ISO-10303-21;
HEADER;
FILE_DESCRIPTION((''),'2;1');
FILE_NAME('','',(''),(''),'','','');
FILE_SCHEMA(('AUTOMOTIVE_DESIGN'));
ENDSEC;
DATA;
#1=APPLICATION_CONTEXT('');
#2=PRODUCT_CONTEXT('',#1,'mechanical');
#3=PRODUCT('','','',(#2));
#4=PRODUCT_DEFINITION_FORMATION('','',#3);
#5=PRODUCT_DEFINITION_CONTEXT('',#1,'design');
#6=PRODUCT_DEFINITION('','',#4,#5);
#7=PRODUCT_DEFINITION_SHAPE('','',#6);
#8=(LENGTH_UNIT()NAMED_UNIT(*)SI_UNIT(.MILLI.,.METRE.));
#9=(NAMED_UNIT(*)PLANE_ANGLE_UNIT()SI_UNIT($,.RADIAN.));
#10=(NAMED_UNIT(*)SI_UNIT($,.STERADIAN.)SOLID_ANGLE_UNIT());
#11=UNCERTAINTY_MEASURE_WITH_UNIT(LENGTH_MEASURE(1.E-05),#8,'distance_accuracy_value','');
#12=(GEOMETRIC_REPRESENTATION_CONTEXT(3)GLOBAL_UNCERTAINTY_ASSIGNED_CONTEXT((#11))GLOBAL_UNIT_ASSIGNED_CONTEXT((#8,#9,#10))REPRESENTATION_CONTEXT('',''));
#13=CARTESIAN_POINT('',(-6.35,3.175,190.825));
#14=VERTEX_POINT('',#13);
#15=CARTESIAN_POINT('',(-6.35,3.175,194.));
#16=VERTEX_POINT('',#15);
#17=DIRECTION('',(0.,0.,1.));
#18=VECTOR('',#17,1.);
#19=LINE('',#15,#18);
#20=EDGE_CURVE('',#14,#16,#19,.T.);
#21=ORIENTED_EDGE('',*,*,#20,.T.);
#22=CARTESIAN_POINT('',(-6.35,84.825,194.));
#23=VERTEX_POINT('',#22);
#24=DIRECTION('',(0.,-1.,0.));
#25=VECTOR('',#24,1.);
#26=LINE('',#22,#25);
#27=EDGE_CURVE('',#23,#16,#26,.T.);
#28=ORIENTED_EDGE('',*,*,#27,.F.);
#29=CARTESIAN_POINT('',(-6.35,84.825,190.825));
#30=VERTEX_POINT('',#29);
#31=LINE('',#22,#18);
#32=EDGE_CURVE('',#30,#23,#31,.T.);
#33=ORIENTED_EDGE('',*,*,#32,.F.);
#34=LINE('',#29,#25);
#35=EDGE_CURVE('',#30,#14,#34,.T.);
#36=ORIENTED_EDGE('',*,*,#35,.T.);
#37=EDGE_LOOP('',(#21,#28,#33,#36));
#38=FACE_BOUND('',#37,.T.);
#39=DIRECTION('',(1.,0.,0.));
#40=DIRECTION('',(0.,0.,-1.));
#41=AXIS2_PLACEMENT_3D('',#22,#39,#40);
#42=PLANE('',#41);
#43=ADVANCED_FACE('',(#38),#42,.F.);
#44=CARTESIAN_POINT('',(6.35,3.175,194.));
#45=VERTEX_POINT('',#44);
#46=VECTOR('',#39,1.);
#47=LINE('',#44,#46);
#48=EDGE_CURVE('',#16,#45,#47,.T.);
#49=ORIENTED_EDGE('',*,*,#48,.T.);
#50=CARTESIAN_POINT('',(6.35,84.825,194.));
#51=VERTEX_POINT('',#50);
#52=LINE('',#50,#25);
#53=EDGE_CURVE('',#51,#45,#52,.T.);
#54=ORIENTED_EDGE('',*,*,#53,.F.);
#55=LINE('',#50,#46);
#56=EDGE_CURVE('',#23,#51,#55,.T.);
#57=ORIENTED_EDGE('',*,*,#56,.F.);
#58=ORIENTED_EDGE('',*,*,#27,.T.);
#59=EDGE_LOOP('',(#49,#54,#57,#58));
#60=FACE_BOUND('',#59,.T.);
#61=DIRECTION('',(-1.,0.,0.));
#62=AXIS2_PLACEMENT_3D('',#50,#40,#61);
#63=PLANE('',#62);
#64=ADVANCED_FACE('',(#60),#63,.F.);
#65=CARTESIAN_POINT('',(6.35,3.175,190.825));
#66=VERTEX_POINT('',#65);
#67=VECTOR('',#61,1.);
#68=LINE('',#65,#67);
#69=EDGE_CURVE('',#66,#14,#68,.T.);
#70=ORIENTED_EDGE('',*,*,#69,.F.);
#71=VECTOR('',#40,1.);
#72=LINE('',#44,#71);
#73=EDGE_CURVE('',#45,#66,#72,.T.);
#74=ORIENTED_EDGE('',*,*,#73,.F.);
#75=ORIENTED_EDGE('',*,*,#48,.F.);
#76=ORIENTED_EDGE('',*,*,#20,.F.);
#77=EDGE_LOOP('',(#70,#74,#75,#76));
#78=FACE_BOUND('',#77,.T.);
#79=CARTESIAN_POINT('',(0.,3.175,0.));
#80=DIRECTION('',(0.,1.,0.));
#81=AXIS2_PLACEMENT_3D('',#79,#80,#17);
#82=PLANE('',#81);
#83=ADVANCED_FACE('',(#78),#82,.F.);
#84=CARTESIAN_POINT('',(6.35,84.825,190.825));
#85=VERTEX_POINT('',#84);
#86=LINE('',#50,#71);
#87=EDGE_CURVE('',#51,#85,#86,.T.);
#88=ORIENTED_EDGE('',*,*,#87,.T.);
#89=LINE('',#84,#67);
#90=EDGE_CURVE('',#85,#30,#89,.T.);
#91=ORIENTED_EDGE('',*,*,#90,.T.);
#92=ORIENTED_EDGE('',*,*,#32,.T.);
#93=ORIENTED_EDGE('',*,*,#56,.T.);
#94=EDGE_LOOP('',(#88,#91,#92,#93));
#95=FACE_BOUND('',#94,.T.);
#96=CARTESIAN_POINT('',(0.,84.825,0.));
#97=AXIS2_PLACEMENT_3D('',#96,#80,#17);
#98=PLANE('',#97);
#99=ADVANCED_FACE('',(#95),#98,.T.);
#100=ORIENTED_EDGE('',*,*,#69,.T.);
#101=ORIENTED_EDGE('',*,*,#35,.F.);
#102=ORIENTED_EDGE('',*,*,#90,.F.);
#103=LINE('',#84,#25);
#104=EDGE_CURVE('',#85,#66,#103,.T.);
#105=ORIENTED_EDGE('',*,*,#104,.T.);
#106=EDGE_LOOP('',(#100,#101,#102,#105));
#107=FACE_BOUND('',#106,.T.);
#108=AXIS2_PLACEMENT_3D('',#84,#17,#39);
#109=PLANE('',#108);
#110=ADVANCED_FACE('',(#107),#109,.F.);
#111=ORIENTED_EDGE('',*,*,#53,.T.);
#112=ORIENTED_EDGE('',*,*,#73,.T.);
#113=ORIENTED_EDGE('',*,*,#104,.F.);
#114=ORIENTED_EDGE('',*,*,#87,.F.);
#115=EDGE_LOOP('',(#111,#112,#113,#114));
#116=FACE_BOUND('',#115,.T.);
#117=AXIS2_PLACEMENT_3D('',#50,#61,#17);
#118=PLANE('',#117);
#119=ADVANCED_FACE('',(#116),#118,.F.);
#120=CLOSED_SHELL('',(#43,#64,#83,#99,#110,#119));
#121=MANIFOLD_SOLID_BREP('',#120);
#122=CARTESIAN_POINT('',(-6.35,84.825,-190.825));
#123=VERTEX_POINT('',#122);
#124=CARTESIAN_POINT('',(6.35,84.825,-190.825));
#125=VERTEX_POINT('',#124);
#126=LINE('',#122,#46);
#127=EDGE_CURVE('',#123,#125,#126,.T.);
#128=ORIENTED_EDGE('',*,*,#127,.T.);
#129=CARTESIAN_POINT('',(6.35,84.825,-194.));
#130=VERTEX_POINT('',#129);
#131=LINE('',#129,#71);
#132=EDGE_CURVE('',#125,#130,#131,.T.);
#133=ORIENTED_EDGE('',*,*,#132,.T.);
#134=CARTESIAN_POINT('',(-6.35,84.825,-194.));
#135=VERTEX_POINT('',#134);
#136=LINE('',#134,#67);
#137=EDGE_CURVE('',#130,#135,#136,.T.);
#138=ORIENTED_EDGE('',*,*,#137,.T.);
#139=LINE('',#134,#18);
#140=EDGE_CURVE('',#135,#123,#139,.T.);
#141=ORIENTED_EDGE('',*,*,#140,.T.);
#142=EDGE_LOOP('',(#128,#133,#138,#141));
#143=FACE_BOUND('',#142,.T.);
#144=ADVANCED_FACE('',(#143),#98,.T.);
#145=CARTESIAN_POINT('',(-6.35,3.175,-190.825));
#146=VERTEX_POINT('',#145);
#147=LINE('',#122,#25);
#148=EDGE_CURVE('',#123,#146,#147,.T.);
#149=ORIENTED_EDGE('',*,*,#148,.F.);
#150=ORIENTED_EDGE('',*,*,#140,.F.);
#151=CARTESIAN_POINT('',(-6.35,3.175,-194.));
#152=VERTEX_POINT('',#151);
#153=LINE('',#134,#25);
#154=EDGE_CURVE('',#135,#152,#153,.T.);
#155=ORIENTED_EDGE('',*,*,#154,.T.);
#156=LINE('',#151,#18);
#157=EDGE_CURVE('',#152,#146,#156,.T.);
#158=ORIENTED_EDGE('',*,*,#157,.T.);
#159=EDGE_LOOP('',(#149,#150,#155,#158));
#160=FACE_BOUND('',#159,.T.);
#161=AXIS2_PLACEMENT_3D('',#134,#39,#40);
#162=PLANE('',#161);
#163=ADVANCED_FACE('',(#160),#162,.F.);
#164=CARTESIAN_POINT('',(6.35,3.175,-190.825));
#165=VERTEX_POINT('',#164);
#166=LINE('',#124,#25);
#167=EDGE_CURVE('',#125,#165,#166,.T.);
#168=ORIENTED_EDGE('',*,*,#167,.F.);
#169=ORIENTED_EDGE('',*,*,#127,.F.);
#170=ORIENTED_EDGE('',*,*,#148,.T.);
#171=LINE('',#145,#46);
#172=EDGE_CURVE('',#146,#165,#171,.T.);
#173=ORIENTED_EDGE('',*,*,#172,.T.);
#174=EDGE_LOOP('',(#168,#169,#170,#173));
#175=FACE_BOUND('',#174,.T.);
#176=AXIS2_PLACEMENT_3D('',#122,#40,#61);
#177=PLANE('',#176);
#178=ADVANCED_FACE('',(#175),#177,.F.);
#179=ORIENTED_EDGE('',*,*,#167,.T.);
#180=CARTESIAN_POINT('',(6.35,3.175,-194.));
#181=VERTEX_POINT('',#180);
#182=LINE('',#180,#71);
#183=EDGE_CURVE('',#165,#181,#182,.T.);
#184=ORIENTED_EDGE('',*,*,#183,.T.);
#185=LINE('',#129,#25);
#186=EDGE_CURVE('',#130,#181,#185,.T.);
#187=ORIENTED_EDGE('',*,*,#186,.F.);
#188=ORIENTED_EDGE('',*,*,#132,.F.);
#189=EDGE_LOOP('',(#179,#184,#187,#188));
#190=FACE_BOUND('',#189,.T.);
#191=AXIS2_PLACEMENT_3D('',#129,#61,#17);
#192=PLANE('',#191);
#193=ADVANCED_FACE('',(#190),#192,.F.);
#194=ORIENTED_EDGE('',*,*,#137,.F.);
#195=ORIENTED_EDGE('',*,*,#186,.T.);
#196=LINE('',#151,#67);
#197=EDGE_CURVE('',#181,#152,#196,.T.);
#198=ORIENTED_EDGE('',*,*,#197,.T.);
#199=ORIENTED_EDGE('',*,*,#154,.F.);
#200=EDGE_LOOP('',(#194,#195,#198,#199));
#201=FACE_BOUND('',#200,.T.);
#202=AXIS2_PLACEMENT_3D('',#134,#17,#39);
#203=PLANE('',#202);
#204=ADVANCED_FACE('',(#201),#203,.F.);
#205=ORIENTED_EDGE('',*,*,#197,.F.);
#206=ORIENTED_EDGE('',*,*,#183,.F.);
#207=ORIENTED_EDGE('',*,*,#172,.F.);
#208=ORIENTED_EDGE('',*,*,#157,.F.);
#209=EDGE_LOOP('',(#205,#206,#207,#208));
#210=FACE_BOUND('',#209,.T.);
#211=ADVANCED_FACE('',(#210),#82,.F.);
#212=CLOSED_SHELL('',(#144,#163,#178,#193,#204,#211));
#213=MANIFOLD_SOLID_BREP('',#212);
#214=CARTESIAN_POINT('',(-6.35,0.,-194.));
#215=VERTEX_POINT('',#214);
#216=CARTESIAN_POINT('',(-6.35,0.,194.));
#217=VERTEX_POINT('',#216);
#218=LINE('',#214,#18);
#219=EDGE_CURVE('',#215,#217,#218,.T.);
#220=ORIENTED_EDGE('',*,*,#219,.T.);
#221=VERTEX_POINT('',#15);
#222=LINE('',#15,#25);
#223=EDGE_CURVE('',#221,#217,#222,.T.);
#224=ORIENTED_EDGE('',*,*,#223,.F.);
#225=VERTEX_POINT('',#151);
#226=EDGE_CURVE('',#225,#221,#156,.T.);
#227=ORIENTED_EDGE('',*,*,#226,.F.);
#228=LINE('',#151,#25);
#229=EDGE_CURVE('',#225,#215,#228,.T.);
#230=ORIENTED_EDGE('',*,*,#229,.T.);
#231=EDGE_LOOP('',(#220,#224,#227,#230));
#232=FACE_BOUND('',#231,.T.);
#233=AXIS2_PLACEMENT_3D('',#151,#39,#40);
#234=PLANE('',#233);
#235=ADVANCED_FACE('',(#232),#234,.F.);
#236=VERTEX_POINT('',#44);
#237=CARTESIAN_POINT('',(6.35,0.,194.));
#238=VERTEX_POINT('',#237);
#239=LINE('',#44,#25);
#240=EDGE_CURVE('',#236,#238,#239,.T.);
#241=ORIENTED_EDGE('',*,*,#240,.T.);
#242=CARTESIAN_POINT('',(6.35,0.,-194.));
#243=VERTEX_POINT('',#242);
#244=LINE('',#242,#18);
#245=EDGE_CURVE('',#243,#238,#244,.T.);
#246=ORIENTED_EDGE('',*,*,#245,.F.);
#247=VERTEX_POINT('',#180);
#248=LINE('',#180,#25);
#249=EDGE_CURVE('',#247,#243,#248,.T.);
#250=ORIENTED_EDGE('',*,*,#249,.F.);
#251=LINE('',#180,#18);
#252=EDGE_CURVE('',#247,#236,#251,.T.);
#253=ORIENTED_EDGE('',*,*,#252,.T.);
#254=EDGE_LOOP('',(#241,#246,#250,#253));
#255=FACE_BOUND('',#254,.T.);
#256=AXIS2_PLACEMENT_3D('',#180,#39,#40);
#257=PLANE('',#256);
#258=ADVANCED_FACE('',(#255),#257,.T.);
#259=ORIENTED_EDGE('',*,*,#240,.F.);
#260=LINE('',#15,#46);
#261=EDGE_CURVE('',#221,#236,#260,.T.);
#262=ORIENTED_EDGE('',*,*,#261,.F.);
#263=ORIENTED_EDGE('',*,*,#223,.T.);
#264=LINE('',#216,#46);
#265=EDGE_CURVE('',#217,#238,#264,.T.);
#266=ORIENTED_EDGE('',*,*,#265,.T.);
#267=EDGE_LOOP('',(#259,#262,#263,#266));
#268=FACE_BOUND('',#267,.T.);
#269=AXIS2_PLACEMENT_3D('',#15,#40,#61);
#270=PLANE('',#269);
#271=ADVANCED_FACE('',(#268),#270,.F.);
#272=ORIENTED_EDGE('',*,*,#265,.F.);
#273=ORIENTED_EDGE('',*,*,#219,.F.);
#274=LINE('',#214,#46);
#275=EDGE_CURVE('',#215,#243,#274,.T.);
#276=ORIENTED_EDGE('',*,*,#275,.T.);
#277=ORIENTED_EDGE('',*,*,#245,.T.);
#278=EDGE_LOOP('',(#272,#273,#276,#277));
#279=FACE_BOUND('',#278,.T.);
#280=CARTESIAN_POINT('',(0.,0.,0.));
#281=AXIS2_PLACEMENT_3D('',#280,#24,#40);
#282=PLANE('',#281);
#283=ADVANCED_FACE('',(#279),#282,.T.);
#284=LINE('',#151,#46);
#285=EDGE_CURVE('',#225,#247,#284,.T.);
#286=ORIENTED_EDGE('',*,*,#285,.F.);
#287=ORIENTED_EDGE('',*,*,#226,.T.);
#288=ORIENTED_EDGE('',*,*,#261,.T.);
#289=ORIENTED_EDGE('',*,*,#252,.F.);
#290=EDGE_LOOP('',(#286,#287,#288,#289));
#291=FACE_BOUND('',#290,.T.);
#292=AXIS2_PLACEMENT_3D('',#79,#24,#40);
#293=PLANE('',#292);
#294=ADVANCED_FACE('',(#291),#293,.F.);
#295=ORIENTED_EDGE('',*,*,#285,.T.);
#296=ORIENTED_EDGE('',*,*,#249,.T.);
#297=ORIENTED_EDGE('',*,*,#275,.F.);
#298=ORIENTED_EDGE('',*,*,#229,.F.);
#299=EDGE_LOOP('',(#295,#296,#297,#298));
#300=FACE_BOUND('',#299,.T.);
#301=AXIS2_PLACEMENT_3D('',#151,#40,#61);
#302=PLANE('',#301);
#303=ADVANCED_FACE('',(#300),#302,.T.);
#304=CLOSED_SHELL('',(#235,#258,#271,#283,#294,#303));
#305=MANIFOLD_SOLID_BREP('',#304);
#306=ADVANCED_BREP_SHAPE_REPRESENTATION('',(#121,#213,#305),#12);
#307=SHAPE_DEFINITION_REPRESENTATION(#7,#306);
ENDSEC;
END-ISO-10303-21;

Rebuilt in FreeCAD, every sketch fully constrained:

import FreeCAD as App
import Part
import Sketcher

V = App.Vector
Q = App.Units.Quantity

doc = App.newDocument("Part")
body = doc.addObject("PartDesign::Body", "Body")

sketch1 = body.newObject("Sketcher::SketchObject", "Sketch")
sketch1.AttachmentSupport = (doc.getObject("XZ_Plane"), [""])
sketch1.MapMode = "FlatFace"
sketch1.addGeometry(Part.LineSegment(V(-6.35, -194, 0), V(-6.35, 194, 0)), False)
sketch1.addGeometry(Part.LineSegment(V(-6.35, 194, 0), V(6.35, 194, 0)), False)
sketch1.addGeometry(Part.LineSegment(V(6.35, 194, 0), V(6.35, -194, 0)), False)
sketch1.addGeometry(Part.LineSegment(V(6.35, -194, 0), V(-6.35, -194, 0)), False)
sketch1.addConstraint(Sketcher.Constraint("Coincident", 0, 2, 1, 1))
sketch1.addConstraint(Sketcher.Constraint("Coincident", 1, 2, 2, 1))
sketch1.addConstraint(Sketcher.Constraint("Coincident", 2, 2, 3, 1))
sketch1.addConstraint(Sketcher.Constraint("Coincident", 3, 2, 0, 1))
sketch1.addConstraint(Sketcher.Constraint("Vertical", 0))
sketch1.addConstraint(Sketcher.Constraint("Horizontal", 1))
sketch1.addConstraint(Sketcher.Constraint("Vertical", 2))
sketch1.addConstraint(Sketcher.Constraint("Horizontal", 3))
sketch1.addConstraint(Sketcher.Constraint("Symmetric", 0, 2, 2, 2, -1, 1))
sketch1.addConstraint(Sketcher.Constraint("DistanceX", 1, 1, 1, 2, Q("0.5 in")))
sketch1.addConstraint(Sketcher.Constraint("DistanceY", 0, 1, 0, 2, 388.0))
pad1 = body.newObject("PartDesign::Pad", "Pad")
pad1.Profile = sketch1
pad1.Length = Q("0.125 in")
pad1.Reversed = True
body2 = doc.addObject("PartDesign::Body", "Body001")

sketch2 = body2.newObject("Sketcher::SketchObject", "Sketch001")
sketch2.AttachmentSupport = (doc.getObject("XZ_Plane001"), [""])
sketch2.MapMode = "FlatFace"
sketch2.AttachmentOffset = App.Placement(V(0, 0, -0.125 * 25.4), App.Rotation())
sketch2.addGeometry(Part.LineSegment(V(-6.35, 190.825, 0), V(-6.35, 194, 0)), False)
sketch2.addGeometry(Part.LineSegment(V(-6.35, 194, 0), V(6.35, 194, 0)), False)
sketch2.addGeometry(Part.LineSegment(V(6.35, 194, 0), V(6.35, 190.825, 0)), False)
sketch2.addGeometry(Part.LineSegment(V(6.35, 190.825, 0), V(-6.35, 190.825, 0)), False)
sketch2.addConstraint(Sketcher.Constraint("Coincident", 0, 2, 1, 1))
sketch2.addConstraint(Sketcher.Constraint("Coincident", 1, 2, 2, 1))
sketch2.addConstraint(Sketcher.Constraint("Coincident", 2, 2, 3, 1))
sketch2.addConstraint(Sketcher.Constraint("Coincident", 3, 2, 0, 1))
sketch2.addConstraint(Sketcher.Constraint("Vertical", 0))
sketch2.addConstraint(Sketcher.Constraint("Horizontal", 1))
sketch2.addConstraint(Sketcher.Constraint("Vertical", 2))
sketch2.addConstraint(Sketcher.Constraint("Horizontal", 3))
sketch2.addConstraint(Sketcher.Constraint("DistanceX", 1, 1, 1, 2, Q("0.5 in")))
sketch2.addConstraint(Sketcher.Constraint("DistanceY", 0, 1, 0, 2, Q("0.125 in")))
sketch2.addConstraint(Sketcher.Constraint("DistanceX", 0, 2, -1, 1, Q("0.25 in")))
sketch2.addConstraint(Sketcher.Constraint("DistanceY", -1, 1, 0, 2, 194.0))
pad2 = body2.newObject("PartDesign::Pad", "Pad001")
pad2.Profile = sketch2
pad2.Length = 81.65
pad2.Reversed = True
body3 = doc.addObject("PartDesign::Body", "Body002")

sketch3 = body3.newObject("Sketcher::SketchObject", "Sketch002")
sketch3.AttachmentSupport = (doc.getObject("XZ_Plane002"), [""])
sketch3.MapMode = "FlatFace"
sketch3.AttachmentOffset = App.Placement(V(0, 0, -0.125 * 25.4), App.Rotation())
sketch3.addGeometry(Part.LineSegment(V(-6.35, -194, 0), V(-6.35, -190.825, 0)), False)
sketch3.addGeometry(Part.LineSegment(V(-6.35, -190.825, 0), V(6.35, -190.825, 0)), False)
sketch3.addGeometry(Part.LineSegment(V(6.35, -190.825, 0), V(6.35, -194, 0)), False)
sketch3.addGeometry(Part.LineSegment(V(6.35, -194, 0), V(-6.35, -194, 0)), False)
sketch3.addConstraint(Sketcher.Constraint("Coincident", 0, 2, 1, 1))
sketch3.addConstraint(Sketcher.Constraint("Coincident", 1, 2, 2, 1))
sketch3.addConstraint(Sketcher.Constraint("Coincident", 2, 2, 3, 1))
sketch3.addConstraint(Sketcher.Constraint("Coincident", 3, 2, 0, 1))
sketch3.addConstraint(Sketcher.Constraint("Vertical", 0))
sketch3.addConstraint(Sketcher.Constraint("Horizontal", 1))
sketch3.addConstraint(Sketcher.Constraint("Vertical", 2))
sketch3.addConstraint(Sketcher.Constraint("Horizontal", 3))
sketch3.addConstraint(Sketcher.Constraint("DistanceX", 1, 1, 1, 2, Q("0.5 in")))
sketch3.addConstraint(Sketcher.Constraint("DistanceY", 0, 1, 0, 2, Q("0.125 in")))
sketch3.addConstraint(Sketcher.Constraint("DistanceX", 0, 2, -1, 1, Q("0.25 in")))
sketch3.addConstraint(Sketcher.Constraint("DistanceY", 0, 2, -1, 1, 190.825))
pad3 = body3.newObject("PartDesign::Pad", "Pad002")
pad3.Profile = sketch3
pad3.Length = 81.65
pad3.Reversed = True

doc.recompute()
